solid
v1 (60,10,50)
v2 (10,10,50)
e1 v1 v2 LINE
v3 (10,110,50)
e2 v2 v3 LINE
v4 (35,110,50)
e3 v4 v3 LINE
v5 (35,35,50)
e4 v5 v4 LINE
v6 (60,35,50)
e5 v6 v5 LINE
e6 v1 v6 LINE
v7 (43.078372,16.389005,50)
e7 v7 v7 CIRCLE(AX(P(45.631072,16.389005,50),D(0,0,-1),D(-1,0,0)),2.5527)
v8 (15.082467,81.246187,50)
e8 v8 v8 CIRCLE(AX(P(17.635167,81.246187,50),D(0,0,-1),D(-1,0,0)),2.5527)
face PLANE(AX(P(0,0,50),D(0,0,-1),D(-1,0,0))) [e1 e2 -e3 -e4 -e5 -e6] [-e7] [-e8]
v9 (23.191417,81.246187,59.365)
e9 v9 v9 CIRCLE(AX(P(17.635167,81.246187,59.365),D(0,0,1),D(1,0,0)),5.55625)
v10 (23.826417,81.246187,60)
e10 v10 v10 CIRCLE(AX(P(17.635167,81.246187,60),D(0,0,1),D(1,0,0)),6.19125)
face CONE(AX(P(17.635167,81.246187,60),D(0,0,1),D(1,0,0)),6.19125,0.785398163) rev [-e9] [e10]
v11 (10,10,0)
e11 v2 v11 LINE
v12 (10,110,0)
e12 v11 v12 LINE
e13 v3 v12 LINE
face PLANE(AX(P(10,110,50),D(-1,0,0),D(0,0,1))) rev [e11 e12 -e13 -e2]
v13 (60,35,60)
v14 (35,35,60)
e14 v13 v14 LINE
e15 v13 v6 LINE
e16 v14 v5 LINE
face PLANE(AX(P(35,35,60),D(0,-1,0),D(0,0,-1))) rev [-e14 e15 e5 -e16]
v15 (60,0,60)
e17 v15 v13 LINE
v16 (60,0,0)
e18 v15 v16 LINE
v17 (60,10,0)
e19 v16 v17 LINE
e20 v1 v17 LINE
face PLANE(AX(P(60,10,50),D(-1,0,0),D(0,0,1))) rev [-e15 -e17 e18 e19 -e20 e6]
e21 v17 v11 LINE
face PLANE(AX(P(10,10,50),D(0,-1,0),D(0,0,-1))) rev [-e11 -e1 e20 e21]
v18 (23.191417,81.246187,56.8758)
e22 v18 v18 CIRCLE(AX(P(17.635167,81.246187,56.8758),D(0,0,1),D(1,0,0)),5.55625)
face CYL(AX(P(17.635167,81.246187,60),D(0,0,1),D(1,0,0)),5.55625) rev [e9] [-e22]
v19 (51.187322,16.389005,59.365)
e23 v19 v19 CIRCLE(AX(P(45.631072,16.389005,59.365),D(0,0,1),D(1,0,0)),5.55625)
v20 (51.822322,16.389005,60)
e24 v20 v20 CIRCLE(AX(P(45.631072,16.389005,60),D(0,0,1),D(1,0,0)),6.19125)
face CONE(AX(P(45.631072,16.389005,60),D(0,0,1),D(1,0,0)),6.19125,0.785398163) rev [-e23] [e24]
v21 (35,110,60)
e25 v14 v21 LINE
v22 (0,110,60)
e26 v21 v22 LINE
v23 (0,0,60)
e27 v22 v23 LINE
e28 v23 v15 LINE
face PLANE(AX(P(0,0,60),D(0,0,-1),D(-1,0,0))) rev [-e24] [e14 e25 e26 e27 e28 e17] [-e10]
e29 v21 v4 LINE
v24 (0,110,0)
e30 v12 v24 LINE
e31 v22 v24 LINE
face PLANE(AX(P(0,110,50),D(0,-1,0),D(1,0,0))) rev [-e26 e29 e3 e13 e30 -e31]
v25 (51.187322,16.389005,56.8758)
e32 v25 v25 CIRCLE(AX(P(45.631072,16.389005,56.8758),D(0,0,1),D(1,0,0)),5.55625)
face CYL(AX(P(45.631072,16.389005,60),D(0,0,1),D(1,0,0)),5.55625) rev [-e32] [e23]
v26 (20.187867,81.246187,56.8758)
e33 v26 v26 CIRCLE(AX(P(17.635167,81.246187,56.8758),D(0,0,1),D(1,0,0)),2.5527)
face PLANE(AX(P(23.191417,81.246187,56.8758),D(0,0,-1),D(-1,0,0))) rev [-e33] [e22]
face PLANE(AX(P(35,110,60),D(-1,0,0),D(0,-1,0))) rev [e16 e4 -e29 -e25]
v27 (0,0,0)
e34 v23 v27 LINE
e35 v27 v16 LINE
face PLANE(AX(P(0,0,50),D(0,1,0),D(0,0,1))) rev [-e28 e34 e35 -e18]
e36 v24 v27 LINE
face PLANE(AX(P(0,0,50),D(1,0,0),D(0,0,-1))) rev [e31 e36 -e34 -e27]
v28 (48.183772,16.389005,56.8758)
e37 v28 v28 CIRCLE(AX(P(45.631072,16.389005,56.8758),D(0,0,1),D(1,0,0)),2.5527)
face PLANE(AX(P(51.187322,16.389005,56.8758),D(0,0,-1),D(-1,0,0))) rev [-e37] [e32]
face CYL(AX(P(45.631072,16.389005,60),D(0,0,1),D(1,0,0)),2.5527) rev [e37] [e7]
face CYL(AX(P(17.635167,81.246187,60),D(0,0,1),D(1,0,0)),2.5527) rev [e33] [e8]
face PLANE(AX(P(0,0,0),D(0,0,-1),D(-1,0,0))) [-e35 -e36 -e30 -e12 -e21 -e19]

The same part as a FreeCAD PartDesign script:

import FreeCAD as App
import Part
import Sketcher
from FreeCAD import Vector
Q = App.Units.Quantity

doc = App.newDocument("Part")
body = doc.addObject("PartDesign::Body", "Body")

# Sketch on XY plane
sketch1 = body.newObject("Sketcher::SketchObject", "Sketch")
sketch1.AttachmentSupport = (doc.getObject("XY_Plane"), [""])
sketch1.MapMode = "FlatFace"
sketch1.addGeometry([
    Part.LineSegment(Vector(10, 110, 0), Vector(0, 110, 0)),  # 0
    Part.LineSegment(Vector(0, 110, 0), Vector(0, 0, 0)),  # 1
    Part.LineSegment(Vector(0, 0, 0), Vector(60, 0, 0)),  # 2
    Part.LineSegment(Vector(60, 0, 0), Vector(60, 10, 0)),  # 3
    Part.LineSegment(Vector(60, 10, 0), Vector(10, 10, 0)),  # 4
    Part.LineSegment(Vector(10, 10, 0), Vector(10, 110, 0)),  # 5
], False)
sketch1.addConstraint([
    Sketcher.Constraint("Coincident", 0, 2, 1, 1),
    Sketcher.Constraint("Coincident", 1, 2, 2, 1),
    Sketcher.Constraint("Coincident", 2, 2, 3, 1),
    Sketcher.Constraint("Coincident", 3, 2, 4, 1),
    Sketcher.Constraint("Coincident", 4, 2, 5, 1),
    Sketcher.Constraint("Coincident", 5, 2, 0, 1),
    Sketcher.Constraint("Horizontal", 0),
    Sketcher.Constraint("Vertical", 1),
    Sketcher.Constraint("Horizontal", 2),
    Sketcher.Constraint("Vertical", 3),
    Sketcher.Constraint("Horizontal", 4),
    Sketcher.Constraint("Vertical", 5),
    Sketcher.Constraint("Coincident", 1, 2, -1, 1),
    Sketcher.Constraint("Equal", 0, 3),
    Sketcher.Constraint("DistanceX", 0, 2, 0, 1, Q("10 mm")),
    Sketcher.Constraint("DistanceX", 2, 1, 2, 2, Q("60 mm")),
    Sketcher.Constraint("DistanceY", 1, 2, 1, 1, Q("110 mm")),
])
pad1 = body.newObject("PartDesign::Pad", "Pad")
pad1.Profile = sketch1
pad1.Length = 50

# Sketch on XY plane
sketch2 = body.newObject("Sketcher::SketchObject", "Sketch001")
sketch2.AttachmentSupport = (doc.getObject("XY_Plane"), [""])
sketch2.MapMode = "FlatFace"
sketch2.AttachmentOffset = App.Placement(Vector(0, 0, 50), App.Rotation())
sketch2.addGeometry([
    Part.LineSegment(Vector(35, 110, 0), Vector(0, 110, 0)),  # 0
    Part.LineSegment(Vector(0, 110, 0), Vector(0, 0, 0)),  # 1
    Part.LineSegment(Vector(0, 0, 0), Vector(60, 0, 0)),  # 2
    Part.LineSegment(Vector(60, 0, 0), Vector(60, 35, 0)),  # 3
    Part.LineSegment(Vector(60, 35, 0), Vector(35, 35, 0)),  # 4
    Part.LineSegment(Vector(35, 35, 0), Vector(35, 110, 0)),  # 5
], False)
sketch2.addConstraint([
    Sketcher.Constraint("Coincident", 0, 2, 1, 1),
    Sketcher.Constraint("Coincident", 1, 2, 2, 1),
    Sketcher.Constraint("Coincident", 2, 2, 3, 1),
    Sketcher.Constraint("Coincident", 3, 2, 4, 1),
    Sketcher.Constraint("Coincident", 4, 2, 5, 1),
    Sketcher.Constraint("Coincident", 5, 2, 0, 1),
    Sketcher.Constraint("Horizontal", 0),
    Sketcher.Constraint("Vertical", 1),
    Sketcher.Constraint("Horizontal", 2),
    Sketcher.Constraint("Vertical", 3),
    Sketcher.Constraint("Horizontal", 4),
    Sketcher.Constraint("Vertical", 5),
    Sketcher.Constraint("Coincident", 1, 2, -1, 1),
    Sketcher.Constraint("Equal", 0, 3),
    Sketcher.Constraint("DistanceX", 0, 2, 0, 1, Q("35 mm")),
    Sketcher.Constraint("DistanceX", 2, 1, 2, 2, Q("60 mm")),
    Sketcher.Constraint("DistanceY", 1, 2, 1, 1, Q("110 mm")),
])
pad2 = body.newObject("PartDesign::Pad", "Pad001")
pad2.Profile = sketch2
pad2.Length = 10

# Sketch on YZ plane
sketch3 = body.newObject("Sketcher::SketchObject", "Sketch002")
sketch3.AttachmentSupport = (doc.getObject("YZ_Plane"), [""])
sketch3.MapMode = "FlatFace"
sketch3.AttachmentOffset = App.Placement(Vector(0, 0, 17.635167), App.Rotation())
sketch3.addGeometry([
    Part.LineSegment(Vector(81.2, 0, 0), Vector(81.2, 60, 0)),  # 0
    Part.LineSegment(Vector(81.2, 60, 0), Vector(75.1, 60, 0)),  # 1
    Part.LineSegment(Vector(75.1, 60, 0), Vector(75.7, 59.4, 0)),  # 2
    Part.LineSegment(Vector(75.7, 59.4, 0), Vector(75.7, 56.9, 0)),  # 3
    Part.LineSegment(Vector(75.7, 56.9, 0), Vector(78.7, 56.9, 0)),  # 4
    Part.LineSegment(Vector(78.7, 56.9, 0), Vector(78.7, 0, 0)),  # 5
    Part.LineSegment(Vector(78.7, 0, 0), Vector(81.2, 0, 0)),  # 6
], False)
sketch3.addGeometry(Part.LineSegment(Vector(81.2, 60, 0), Vector(81.2, 0, 0)), True)  # axis
sketch3.addConstraint([
    Sketcher.Constraint("Coincident", 0, 2, 1, 1),
    Sketcher.Constraint("Coincident", 1, 2, 2, 1),
    Sketcher.Constraint("Coincident", 2, 2, 3, 1),
    Sketcher.Constraint("Coincident", 3, 2, 4, 1),
    Sketcher.Constraint("Coincident", 4, 2, 5, 1),
    Sketcher.Constraint("Coincident", 5, 2, 6, 1),
    Sketcher.Constraint("Coincident", 6, 2, 0, 1),
    Sketcher.Constraint("Vertical", 0),
    Sketcher.Constraint("Horizontal", 1),
    Sketcher.Constraint("Vertical", 3),
    Sketcher.Constraint("Horizontal", 4),
    Sketcher.Constraint("Vertical", 5),
    Sketcher.Constraint("Horizontal", 6),
    Sketcher.Constraint("Vertical", 7),
    Sketcher.Constraint("Coincident", 7, 1, 0, 2),
    Sketcher.Constraint("Horizontal", 5, 2, 7, 2),
    Sketcher.Constraint("Angle", 2, Q("-45 deg")),
    Sketcher.Constraint("DistanceY", -1, 1, 0, 2, Q("60 mm")),
    Sketcher.Constraint("DistanceX", 6, 1, 6, 2, Q("2.5527 mm")),
    Sketcher.Constraint("DistanceY", 3, 2, 3, 1, Q("2.4892 mm")),
    Sketcher.Constraint("DistanceY", -1, 1, 2, 2, Q("59.365 mm")),
    Sketcher.Constraint("DistanceX", 1, 2, 1, 1, Q("6.19125 mm")),
    Sketcher.Constraint("DistanceY", 0, 1, 0, 2, Q("60.000025 mm")),
    Sketcher.Constraint("DistanceX", -1, 1, 0, 2, Q("81.246187 mm")),
])
groove = body.newObject("PartDesign::Groove", "Groove")
groove.Profile = sketch3
groove.ReferenceAxis = (sketch3, ["Axis0"])
groove.Angle = 360
doc.recompute()

datumline = body.newObject("PartDesign::Line", "DatumLine")
datumline.Placement = App.Placement(Vector(0, 0, 0), App.Rotation(Vector(0, 0, 1), Vector(0.396309488, -0.91811698, 0)))
linearpattern = body.newObject("PartDesign::LinearPattern", "LinearPattern")
linearpattern.Originals = [groove]
linearpattern.Direction = (datumline, [""])
linearpattern.Mode = "offset"
linearpattern.Offset = 70.641523
linearpattern.Occurrences = 2
body.Tip = linearpattern

doc.recompute()
